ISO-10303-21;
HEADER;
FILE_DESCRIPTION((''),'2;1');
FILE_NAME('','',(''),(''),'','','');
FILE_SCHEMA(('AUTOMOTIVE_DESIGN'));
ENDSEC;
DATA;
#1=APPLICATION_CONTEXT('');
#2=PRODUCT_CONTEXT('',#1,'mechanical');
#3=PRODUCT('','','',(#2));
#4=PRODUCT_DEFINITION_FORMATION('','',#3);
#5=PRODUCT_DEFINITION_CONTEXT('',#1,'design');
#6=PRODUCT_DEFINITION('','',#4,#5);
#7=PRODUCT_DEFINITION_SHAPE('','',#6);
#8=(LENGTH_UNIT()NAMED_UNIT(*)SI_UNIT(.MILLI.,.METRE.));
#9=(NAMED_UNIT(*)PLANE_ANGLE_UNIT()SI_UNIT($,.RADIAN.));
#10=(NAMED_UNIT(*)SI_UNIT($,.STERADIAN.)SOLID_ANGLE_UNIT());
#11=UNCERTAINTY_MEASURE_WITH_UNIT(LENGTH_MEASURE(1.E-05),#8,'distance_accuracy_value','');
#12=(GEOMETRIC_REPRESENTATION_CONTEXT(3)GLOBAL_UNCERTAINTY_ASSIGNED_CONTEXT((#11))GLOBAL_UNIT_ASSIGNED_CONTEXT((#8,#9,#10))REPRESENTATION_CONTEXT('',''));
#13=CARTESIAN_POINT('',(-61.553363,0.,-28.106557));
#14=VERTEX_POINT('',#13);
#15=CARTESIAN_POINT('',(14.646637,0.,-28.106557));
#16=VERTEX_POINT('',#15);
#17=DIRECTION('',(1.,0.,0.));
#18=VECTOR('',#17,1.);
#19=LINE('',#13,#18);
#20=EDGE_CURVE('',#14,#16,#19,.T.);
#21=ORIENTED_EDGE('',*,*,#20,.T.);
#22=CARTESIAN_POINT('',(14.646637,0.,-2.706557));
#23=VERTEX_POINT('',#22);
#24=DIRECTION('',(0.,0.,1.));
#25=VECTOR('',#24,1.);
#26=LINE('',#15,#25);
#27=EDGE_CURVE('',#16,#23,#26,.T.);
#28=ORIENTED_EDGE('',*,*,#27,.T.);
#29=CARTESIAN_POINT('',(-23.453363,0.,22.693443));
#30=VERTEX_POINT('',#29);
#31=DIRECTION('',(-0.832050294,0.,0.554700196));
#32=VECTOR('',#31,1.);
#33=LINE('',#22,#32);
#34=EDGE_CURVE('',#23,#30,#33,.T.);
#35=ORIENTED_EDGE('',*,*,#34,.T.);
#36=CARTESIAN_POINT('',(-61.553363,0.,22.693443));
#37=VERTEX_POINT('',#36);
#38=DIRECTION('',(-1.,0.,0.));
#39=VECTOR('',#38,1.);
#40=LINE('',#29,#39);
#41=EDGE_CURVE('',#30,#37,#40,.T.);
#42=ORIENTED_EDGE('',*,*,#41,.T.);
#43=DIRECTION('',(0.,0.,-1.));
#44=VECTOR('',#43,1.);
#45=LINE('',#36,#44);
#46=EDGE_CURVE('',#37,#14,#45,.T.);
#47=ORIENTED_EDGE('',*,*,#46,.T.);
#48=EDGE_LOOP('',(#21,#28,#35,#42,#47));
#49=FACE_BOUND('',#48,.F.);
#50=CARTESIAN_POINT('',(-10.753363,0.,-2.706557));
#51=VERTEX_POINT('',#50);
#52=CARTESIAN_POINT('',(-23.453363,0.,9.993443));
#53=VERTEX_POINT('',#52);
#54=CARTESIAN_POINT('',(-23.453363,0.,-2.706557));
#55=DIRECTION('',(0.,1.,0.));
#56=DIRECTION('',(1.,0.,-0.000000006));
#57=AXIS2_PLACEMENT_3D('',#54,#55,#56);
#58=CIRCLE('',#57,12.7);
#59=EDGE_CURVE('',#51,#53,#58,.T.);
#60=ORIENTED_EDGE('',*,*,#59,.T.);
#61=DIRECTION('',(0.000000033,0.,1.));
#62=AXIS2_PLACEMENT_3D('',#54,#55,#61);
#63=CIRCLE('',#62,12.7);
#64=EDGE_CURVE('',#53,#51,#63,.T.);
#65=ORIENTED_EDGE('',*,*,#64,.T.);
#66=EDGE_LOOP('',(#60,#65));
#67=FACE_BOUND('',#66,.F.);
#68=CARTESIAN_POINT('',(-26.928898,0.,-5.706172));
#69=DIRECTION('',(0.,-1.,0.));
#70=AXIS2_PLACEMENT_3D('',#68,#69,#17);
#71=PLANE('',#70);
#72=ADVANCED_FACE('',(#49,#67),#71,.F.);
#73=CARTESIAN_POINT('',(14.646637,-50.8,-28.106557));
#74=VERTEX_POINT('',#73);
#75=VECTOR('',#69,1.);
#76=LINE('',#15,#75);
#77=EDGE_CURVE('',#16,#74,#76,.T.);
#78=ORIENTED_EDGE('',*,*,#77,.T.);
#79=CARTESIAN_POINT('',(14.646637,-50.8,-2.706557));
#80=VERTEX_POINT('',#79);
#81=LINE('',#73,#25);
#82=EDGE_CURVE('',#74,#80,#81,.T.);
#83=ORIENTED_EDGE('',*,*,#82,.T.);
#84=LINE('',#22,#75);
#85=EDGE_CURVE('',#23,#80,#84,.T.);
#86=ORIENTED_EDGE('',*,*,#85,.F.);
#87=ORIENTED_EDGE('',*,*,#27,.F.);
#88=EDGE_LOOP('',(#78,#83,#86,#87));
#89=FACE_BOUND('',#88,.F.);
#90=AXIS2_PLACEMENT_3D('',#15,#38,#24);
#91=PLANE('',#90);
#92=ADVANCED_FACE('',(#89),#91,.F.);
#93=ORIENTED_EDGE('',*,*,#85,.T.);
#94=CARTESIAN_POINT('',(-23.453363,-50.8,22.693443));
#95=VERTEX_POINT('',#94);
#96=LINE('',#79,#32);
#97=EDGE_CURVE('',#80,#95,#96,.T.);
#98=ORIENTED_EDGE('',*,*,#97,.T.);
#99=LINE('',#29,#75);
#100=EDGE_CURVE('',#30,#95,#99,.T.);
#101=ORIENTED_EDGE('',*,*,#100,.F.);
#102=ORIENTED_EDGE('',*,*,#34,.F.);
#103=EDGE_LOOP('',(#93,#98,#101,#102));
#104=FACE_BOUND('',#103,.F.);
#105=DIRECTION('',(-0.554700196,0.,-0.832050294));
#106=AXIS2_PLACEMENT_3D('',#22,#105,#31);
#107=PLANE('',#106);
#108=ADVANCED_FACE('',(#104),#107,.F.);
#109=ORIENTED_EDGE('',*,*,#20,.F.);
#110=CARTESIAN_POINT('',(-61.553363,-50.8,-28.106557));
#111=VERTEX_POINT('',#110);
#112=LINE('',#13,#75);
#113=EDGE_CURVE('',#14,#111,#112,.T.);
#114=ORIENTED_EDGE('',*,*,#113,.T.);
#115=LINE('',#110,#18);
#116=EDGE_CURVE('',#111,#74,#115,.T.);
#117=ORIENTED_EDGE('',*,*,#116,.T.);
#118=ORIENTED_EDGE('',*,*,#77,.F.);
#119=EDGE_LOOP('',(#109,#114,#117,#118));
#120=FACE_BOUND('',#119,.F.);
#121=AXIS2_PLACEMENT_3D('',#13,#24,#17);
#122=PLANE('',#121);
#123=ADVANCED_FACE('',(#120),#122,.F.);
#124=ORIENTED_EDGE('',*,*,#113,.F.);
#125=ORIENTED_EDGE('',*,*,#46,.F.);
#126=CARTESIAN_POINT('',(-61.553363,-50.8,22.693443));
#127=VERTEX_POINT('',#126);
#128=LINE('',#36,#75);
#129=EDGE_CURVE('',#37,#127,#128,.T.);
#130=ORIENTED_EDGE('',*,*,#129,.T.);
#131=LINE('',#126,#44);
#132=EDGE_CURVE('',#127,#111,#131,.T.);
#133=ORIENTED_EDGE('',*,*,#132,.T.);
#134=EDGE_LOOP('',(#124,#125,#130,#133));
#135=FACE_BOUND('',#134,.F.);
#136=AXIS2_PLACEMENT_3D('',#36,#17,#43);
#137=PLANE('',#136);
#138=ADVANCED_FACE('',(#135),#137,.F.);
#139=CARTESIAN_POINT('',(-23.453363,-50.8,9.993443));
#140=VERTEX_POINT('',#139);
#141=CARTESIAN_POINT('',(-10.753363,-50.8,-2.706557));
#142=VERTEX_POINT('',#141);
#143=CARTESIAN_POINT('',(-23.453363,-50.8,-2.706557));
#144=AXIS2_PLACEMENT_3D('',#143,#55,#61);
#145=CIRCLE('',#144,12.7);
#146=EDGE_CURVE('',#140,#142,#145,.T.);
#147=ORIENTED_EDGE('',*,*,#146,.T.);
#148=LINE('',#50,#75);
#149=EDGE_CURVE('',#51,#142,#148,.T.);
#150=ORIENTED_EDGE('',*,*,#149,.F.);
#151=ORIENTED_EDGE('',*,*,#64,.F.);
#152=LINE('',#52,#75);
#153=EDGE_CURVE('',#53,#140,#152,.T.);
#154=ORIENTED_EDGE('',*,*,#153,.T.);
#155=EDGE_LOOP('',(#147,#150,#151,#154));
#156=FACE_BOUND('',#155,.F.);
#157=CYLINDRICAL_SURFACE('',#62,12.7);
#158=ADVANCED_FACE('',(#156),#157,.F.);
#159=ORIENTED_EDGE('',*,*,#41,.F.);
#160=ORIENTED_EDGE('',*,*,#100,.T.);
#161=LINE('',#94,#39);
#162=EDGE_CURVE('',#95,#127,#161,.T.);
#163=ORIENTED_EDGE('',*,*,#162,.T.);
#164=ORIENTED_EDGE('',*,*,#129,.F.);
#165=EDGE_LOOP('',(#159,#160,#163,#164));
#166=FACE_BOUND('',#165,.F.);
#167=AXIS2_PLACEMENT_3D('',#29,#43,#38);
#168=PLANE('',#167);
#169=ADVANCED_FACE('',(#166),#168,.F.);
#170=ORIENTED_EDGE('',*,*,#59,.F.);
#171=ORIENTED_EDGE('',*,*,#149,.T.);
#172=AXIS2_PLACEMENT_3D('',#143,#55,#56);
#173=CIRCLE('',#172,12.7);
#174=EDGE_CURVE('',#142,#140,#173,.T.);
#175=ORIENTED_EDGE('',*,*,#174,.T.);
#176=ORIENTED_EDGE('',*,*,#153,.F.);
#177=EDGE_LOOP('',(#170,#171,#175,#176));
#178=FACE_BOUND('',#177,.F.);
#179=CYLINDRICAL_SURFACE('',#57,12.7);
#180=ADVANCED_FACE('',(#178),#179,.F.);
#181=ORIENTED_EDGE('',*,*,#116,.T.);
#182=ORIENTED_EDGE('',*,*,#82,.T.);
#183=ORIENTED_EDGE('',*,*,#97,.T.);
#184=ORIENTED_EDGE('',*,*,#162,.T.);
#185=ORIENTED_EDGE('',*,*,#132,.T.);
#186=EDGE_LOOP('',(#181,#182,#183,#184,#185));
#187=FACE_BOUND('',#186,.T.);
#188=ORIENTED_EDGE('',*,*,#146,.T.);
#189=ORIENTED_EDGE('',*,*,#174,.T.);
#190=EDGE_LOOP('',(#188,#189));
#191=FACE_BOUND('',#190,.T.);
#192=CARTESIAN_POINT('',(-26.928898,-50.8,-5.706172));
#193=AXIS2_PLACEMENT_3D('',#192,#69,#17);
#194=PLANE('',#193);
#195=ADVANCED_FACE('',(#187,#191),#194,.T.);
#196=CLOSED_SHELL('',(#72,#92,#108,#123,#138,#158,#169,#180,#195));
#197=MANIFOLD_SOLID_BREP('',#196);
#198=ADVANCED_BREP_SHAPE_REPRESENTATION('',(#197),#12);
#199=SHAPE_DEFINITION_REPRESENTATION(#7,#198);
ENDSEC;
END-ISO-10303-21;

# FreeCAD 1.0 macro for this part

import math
import FreeCAD as App
import Part
import Sketcher

V = App.Vector
Q = App.Units.Quantity


def add_polygon(sketch, points):
    """Adds a closed chain of lines whose ends are joined by coincident constraints."""
    first, n = sketch.GeometryCount, len(points)
    for a, b in zip(points, points[1:] + points[:1]):
        sketch.addGeometry(Part.LineSegment(App.Vector(*a, 0), App.Vector(*b, 0)), False)
    for i in range(n):
        sketch.addConstraint(Sketcher.Constraint("Coincident", first + i, 2, first + (i + 1) % n, 1))

doc = App.newDocument("Part")
body = doc.addObject("PartDesign::Body", "Body")

sketch1 = body.newObject("Sketcher::SketchObject", "Sketch")
sketch1.AttachmentSupport = (doc.getObject("XZ_Plane"), [""])
sketch1.MapMode = "FlatFace"
add_polygon(sketch1, [(-62, 23), (-62, -28), (15, -28), (15, -3), (-23, 23)])
sketch1.addGeometry(Part.ArcOfCircle(Part.Circle(V(-23, -3, 0), V(0, 0, 1), 13), math.radians(0), math.radians(90)), False)
sketch1.addGeometry(Part.ArcOfCircle(Part.Circle(V(-23, -3, 0), V(0, 0, 1), 13), math.radians(90), math.radians(360)), False)
sketch1.addConstraint([
    Sketcher.Constraint("Tangent", 5, 1, 6, 2),
    Sketcher.Constraint("Coincident", 6, 1, 5, 2),
    Sketcher.Constraint("Vertical", 0),
    Sketcher.Constraint("Horizontal", 1),
    Sketcher.Constraint("Vertical", 2),
    Sketcher.Constraint("Horizontal", 4),
    Sketcher.Constraint("Horizontal", 6, 3, 2, 2),
    Sketcher.Constraint("Horizontal", 2, 2, 5, 1),
    Sketcher.Constraint("Vertical", 6, 3, 3, 2),
    Sketcher.Constraint("Vertical", 3, 2, 6, 1),
    Sketcher.Constraint("Radius", 5, Q("0.5 in")),
    Sketcher.Constraint("DistanceX", 1, 1, 1, 2, Q("3 in")),
    Sketcher.Constraint("DistanceY", 0, 2, 0, 1, Q("2 in")),
    Sketcher.Constraint("DistanceY", 2, 1, 2, 2, Q("1 in")),
    Sketcher.Constraint("DistanceX", 4, 2, 4, 1, Q("1.5 in")),
    Sketcher.Constraint("DistanceX", 5, 3, -1, 1, Q("23.453363 mm")),
    Sketcher.Constraint("DistanceY", 5, 3, -1, 1, Q("2.706557 mm")),
])
pad1 = body.newObject("PartDesign::Pad", "Pad")
pad1.Profile = sketch1
pad1.Length = Q("2 in")

doc.recompute()
